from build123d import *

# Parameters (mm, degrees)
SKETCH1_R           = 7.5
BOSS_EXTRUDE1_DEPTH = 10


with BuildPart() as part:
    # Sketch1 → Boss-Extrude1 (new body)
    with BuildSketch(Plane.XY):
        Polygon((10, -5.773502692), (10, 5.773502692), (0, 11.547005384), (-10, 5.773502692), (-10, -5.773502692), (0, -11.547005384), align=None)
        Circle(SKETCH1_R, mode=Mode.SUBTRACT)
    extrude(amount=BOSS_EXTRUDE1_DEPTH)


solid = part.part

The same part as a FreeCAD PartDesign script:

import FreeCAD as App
import Part
import Sketcher

V = App.Vector
Q = App.Units.Quantity

doc = App.newDocument("Part")
body = doc.addObject("PartDesign::Body", "Body")

sketch1 = doc.addObject("Sketcher::SketchObject", "Sketch")
body.addObject(sketch1)
sketch1.AttachmentSupport = (doc.XY_Plane, [""])
sketch1.MapMode = "FlatFace"
sketch1.addGeometry(Part.LineSegment(V(10, -6, 0), V(10, 6, 0)), False)
sketch1.addGeometry(Part.LineSegment(V(10, 6, 0), V(0, 12, 0)), False)
sketch1.addGeometry(Part.LineSegment(V(0, 12, 0), V(-10, 6, 0)), False)
sketch1.addGeometry(Part.LineSegment(V(-10, 6, 0), V(-10, -6, 0)), False)
sketch1.addGeometry(Part.LineSegment(V(-10, -6, 0), V(0, -12, 0)), False)
sketch1.addGeometry(Part.LineSegment(V(0, -12, 0), V(10, -6, 0)), False)
sketch1.addGeometry(Part.Circle(V(0, 0, 0), V(0, 0, 1), 8), False)
sketch1.addConstraint(Sketcher.Constraint("Coincident", 0, 2, 1, 1))
sketch1.addConstraint(Sketcher.Constraint("Coincident", 1, 2, 2, 1))
sketch1.addConstraint(Sketcher.Constraint("Coincident", 2, 2, 3, 1))
sketch1.addConstraint(Sketcher.Constraint("Coincident", 3, 2, 4, 1))
sketch1.addConstraint(Sketcher.Constraint("Coincident", 4, 2, 5, 1))
sketch1.addConstraint(Sketcher.Constraint("Coincident", 5, 2, 0, 1))
sketch1.addConstraint(Sketcher.Constraint("Vertical", 0))
sketch1.addConstraint(Sketcher.Constraint("Vertical", 3))
sketch1.addConstraint(Sketcher.Constraint("Coincident", 6, 3, -1, 1))
sketch1.addConstraint(Sketcher.Constraint("Symmetric", 0, 2, 3, 2, -1, 1))
sketch1.addConstraint(Sketcher.Constraint("Symmetric", 1, 2, 4, 2, -1, 1))
sketch1.addConstraint(Sketcher.Constraint("PointOnObject", 1, 2, -2))
sketch1.addConstraint(Sketcher.Constraint("Parallel", 2, 5))
sketch1.addConstraint(Sketcher.Constraint("Horizontal", 0, 2, 2, 2))
sketch1.addConstraint(Sketcher.Constraint("Diameter", 6, 15.0))
sketch1.addConstraint(Sketcher.Constraint("Angle", 1, Q("150 deg")))
sketch1.addConstraint(Sketcher.Constraint("DistanceX", -1, 1, 0, 2, 10.0))
sketch1.addConstraint(Sketcher.Constraint("DistanceY", 0, 1, 0, 2, 11.547005))
pad1 = doc.addObject("PartDesign::Pad", "Pad")
body.addObject(pad1)
pad1.Profile = sketch1
pad1.Length = 10

doc.recompute()
